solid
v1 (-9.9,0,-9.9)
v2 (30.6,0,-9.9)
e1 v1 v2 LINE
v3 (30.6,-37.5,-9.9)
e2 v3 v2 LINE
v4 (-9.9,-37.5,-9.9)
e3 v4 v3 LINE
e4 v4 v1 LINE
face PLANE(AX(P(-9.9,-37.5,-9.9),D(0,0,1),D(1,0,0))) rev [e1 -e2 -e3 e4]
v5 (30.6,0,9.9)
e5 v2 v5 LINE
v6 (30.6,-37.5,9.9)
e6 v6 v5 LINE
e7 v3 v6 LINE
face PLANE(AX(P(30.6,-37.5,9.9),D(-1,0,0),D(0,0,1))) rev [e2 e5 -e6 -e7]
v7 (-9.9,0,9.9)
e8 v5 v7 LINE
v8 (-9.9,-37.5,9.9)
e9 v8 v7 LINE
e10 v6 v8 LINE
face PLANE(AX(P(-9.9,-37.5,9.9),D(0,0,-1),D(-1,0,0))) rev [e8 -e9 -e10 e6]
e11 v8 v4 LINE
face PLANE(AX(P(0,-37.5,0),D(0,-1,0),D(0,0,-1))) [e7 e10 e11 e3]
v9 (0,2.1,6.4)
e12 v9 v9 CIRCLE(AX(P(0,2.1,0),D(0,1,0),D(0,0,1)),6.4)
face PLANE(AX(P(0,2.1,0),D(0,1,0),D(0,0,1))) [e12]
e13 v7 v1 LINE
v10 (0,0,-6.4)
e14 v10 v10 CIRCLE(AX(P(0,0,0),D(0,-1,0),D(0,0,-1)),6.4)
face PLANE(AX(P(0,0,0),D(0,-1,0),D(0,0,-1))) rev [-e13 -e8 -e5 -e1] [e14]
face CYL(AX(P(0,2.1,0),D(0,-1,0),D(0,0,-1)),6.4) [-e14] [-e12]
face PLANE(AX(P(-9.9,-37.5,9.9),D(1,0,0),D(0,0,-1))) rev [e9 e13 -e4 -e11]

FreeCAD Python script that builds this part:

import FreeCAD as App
import Part
import Sketcher
from FreeCAD import Vector
Q = App.Units.Quantity


def add_polygon(sketch, points):
    """Adds a closed chain of lines whose ends are joined by coincident constraints."""
    first, n = sketch.GeometryCount, len(points)
    for a, b in zip(points, points[1:] + points[:1]):
        sketch.addGeometry(Part.LineSegment(App.Vector(*a, 0), App.Vector(*b, 0)), False)
    for i in range(n):
        sketch.addConstraint(Sketcher.Constraint("Coincident", first + i, 2, first + (i + 1) % n, 1))

doc = App.newDocument("Part")
body = doc.addObject("PartDesign::Body", "Body")

sketch1 = doc.addObject("Sketcher::SketchObject", "Sketch")
body.addObject(sketch1)
sketch1.AttachmentSupport = (doc.XZ_Plane, [""])
sketch1.MapMode = "FlatFace"
sketch1.addGeometry(Part.Circle(Vector(0, 0, 0), Vector(0, 0, 1), 6), False)
sketch1.addConstraint([
    Sketcher.Constraint("Coincident", 0, 3, -1, 1),
    Sketcher.Constraint("Diameter", 0, Q("12.8 mm")),
])
pad1 = doc.addObject("PartDesign::Pad", "Pad")
body.addObject(pad1)
pad1.Profile = sketch1
pad1.Length = 2.1
pad1.Reversed = True

sketch2 = doc.addObject("Sketcher::SketchObject", "Sketch001")
body.addObject(sketch2)
sketch2.AttachmentSupport = (doc.XZ_Plane, [""])
sketch2.MapMode = "FlatFace"
add_polygon(sketch2, [(-10, 10), (-10, -10), (31, -10), (31, 10)])
sketch2.addConstraint([
    Sketcher.Constraint("Vertical", 0),
    Sketcher.Constraint("Horizontal", 1),
    Sketcher.Constraint("Vertical", 2),
    Sketcher.Constraint("Horizontal", 3),
    Sketcher.Constraint("DistanceX", 1, 1, 1, 2, Q("40.5 mm")),
    Sketcher.Constraint("DistanceY", 0, 2, 0, 1, Q("19.8 mm")),
    Sketcher.Constraint("DistanceX", 0, 2, -1, 1, Q("9.9 mm")),
    Sketcher.Constraint("DistanceY", 0, 2, -1, 1, Q("9.9 mm")),
])
pad2 = doc.addObject("PartDesign::Pad", "Pad001")
body.addObject(pad2)
pad2.Profile = sketch2
pad2.Length = 37.5

doc.recompute()
